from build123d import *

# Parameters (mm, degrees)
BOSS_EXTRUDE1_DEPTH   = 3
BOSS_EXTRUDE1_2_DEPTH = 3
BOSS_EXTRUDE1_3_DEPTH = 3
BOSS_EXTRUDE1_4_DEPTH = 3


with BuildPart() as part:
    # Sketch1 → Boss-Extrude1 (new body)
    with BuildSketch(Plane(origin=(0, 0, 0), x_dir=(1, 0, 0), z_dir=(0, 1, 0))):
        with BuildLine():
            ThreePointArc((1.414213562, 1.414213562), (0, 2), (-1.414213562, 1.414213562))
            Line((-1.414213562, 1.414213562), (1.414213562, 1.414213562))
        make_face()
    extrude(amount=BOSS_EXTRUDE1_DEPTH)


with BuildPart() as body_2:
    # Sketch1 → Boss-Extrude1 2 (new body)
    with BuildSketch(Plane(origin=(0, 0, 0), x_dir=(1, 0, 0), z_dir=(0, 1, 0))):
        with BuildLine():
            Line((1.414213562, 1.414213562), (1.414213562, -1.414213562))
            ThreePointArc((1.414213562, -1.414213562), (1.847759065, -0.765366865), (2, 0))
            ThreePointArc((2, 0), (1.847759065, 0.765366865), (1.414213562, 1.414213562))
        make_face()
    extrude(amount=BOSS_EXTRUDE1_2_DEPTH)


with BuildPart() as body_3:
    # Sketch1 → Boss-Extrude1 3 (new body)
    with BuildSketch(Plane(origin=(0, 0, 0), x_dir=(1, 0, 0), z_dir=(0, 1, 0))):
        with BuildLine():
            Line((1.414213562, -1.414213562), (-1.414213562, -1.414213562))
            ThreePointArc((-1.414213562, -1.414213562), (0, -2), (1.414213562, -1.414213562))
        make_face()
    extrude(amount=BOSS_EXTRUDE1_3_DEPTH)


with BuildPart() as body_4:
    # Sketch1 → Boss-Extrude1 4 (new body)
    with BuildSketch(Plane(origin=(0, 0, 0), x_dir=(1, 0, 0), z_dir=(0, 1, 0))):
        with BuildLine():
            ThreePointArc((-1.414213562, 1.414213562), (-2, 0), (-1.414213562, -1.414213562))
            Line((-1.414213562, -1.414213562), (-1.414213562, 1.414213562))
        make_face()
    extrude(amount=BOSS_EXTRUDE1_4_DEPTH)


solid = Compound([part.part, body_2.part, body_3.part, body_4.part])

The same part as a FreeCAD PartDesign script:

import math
import FreeCAD as App
import Part
import Sketcher
Q = App.Units.Quantity

doc = App.newDocument("Part")
body = doc.addObject("PartDesign::Body", "Body")

sketch1 = body.newObject("Sketcher::SketchObject", "Sketch")
sketch1.AttachmentSupport = (doc.getObject("XZ_Plane"), [""])
sketch1.MapMode = "FlatFace"
sketch1.addGeometry([
    Part.ArcOfCircle(Part.Circle(App.Vector(0, 0, 0), App.Vector(0, 0, 1), 2), math.radians(-135), math.radians(-45)),
    Part.LineSegment(App.Vector(-1.4, -1.4, 0), App.Vector(1.4, -1.4, 0)),
], False)
sketch1.addConstraint([
    Sketcher.Constraint("Coincident", 0, 1, 1, 1),
    Sketcher.Constraint("Coincident", 1, 2, 0, 2),
    Sketcher.Constraint("Horizontal", 1),
    Sketcher.Constraint("Coincident", 0, 3, -1, 1),
    Sketcher.Constraint("Radius", 0, Q("2 mm")),
    Sketcher.Constraint("DistanceX", 1, 1, 1, 2, Q("2.828427 mm")),
])
pad1 = body.newObject("PartDesign::Pad", "Pad")
pad1.Profile = sketch1
pad1.Length = 3
pad1.Reversed = True
body2 = doc.addObject("PartDesign::Body", "Body001")

sketch2 = body2.newObject("Sketcher::SketchObject", "Sketch001")
sketch2.AttachmentSupport = (doc.getObject("XZ_Plane001"), [""])
sketch2.MapMode = "FlatFace"
sketch2.addGeometry([
    Part.LineSegment(App.Vector(1.4, -1.4, 0), App.Vector(1.4, 1.4, 0)),
    Part.ArcOfCircle(Part.Circle(App.Vector(0, 0, 0), App.Vector(0, 0, 1), 2), math.radians(0), math.radians(45)),
    Part.ArcOfCircle(Part.Circle(App.Vector(0, 0, 0), App.Vector(0, 0, 1), 2), math.radians(-45), math.radians(0)),
], False)
sketch2.addConstraint([
    Sketcher.Constraint("Coincident", 0, 2, 1, 2),
    Sketcher.Constraint("Tangent", 1, 1, 2, 2),
    Sketcher.Constraint("Coincident", 2, 1, 0, 1),
    Sketcher.Constraint("Vertical", 0),
    Sketcher.Constraint("Coincident", 1, 3, -1, 1),
    Sketcher.Constraint("Equal", 1, 2),
    Sketcher.Constraint("PointOnObject", 1, 1, -1),
    Sketcher.Constraint("Radius", 1, Q("2 mm")),
    Sketcher.Constraint("DistanceY", 0, 1, 0, 2, Q("2.828427 mm")),
])
pad2 = body2.newObject("PartDesign::Pad", "Pad001")
pad2.Profile = sketch2
pad2.Length = 3
pad2.Reversed = True
body3 = doc.addObject("PartDesign::Body", "Body002")

sketch3 = body3.newObject("Sketcher::SketchObject", "Sketch002")
sketch3.AttachmentSupport = (doc.getObject("XZ_Plane002"), [""])
sketch3.MapMode = "FlatFace"
sketch3.addGeometry([
    Part.LineSegment(App.Vector(1.4, 1.4, 0), App.Vector(-1.4, 1.4, 0)),
    Part.ArcOfCircle(Part.Circle(App.Vector(0, 0, 0), App.Vector(0, 0, 1), 2), math.radians(45), math.radians(135)),
], False)
sketch3.addConstraint([
    Sketcher.Constraint("Coincident", 0, 1, 1, 1),
    Sketcher.Constraint("Coincident", 1, 2, 0, 2),
    Sketcher.Constraint("Horizontal", 0),
    Sketcher.Constraint("Coincident", 1, 3, -1, 1),
    Sketcher.Constraint("Radius", 1, Q("2 mm")),
    Sketcher.Constraint("DistanceX", 0, 2, 0, 1, Q("2.828427 mm")),
])
pad3 = body3.newObject("PartDesign::Pad", "Pad002")
pad3.Profile = sketch3
pad3.Length = 3
pad3.Reversed = True
body4 = doc.addObject("PartDesign::Body", "Body003")

sketch4 = body4.newObject("Sketcher::SketchObject", "Sketch003")
sketch4.AttachmentSupport = (doc.getObject("XZ_Plane003"), [""])
sketch4.MapMode = "FlatFace"
sketch4.addGeometry([
    Part.ArcOfCircle(Part.Circle(App.Vector(0, 0, 0), App.Vector(0, 0, 1), 2), math.radians(135), math.radians(225)),
    Part.LineSegment(App.Vector(-1.4, 1.4, 0), App.Vector(-1.4, -1.4, 0)),
], False)
sketch4.addConstraint([
    Sketcher.Constraint("Coincident", 0, 1, 1, 1),
    Sketcher.Constraint("Coincident", 1, 2, 0, 2),
    Sketcher.Constraint("Vertical", 1),
    Sketcher.Constraint("Coincident", 0, 3, -1, 1),
    Sketcher.Constraint("Radius", 0, Q("2 mm")),
    Sketcher.Constraint("DistanceY", 1, 2, 1, 1, Q("2.828427 mm")),
])
pad4 = body4.newObject("PartDesign::Pad", "Pad003")
pad4.Profile = sketch4
pad4.Length = 3
pad4.Reversed = True

doc.recompute()
